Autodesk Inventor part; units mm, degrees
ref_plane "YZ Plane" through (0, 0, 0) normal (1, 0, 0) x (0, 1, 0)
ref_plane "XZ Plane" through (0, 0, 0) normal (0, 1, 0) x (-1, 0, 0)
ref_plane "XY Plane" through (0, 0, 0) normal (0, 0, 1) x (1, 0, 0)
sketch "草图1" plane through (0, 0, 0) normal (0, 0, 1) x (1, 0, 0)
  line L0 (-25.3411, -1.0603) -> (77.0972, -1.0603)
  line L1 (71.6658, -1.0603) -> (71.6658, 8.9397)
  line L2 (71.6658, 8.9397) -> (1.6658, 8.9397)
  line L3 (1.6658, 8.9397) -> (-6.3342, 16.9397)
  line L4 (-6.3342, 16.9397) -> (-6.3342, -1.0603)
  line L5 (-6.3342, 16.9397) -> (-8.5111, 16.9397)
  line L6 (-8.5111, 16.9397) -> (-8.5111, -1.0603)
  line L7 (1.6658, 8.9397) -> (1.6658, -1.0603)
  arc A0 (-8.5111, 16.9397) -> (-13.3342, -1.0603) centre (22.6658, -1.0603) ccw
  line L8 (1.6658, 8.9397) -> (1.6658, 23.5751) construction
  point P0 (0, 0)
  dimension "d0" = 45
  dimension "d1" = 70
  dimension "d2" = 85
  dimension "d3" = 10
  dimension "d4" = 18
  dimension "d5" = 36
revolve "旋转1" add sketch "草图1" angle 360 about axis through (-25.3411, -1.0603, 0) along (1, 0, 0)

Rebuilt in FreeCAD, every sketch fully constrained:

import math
import FreeCAD as App
import Part
import Sketcher
from FreeCAD import Vector
Q = App.Units.Quantity

doc = App.newDocument("Part")
body = doc.addObject("PartDesign::Body", "Body")

# Sketch on XY plane
sketch1 = body.newObject("Sketcher::SketchObject", "Sketch")
sketch1.AttachmentSupport = (doc.getObject("XY_Plane"), [""])
sketch1.MapMode = "FlatFace"
sketch1.addGeometry(Part.ArcOfCircle(Part.Circle(Vector(22.7, -1.1, 0), Vector(0, 0, 1), 36), math.radians(150), math.radians(180)), False)
sketch1.addGeometry(Part.LineSegment(Vector(-13.3, -1.1, 0), Vector(71.7, -1.1, 0)), False)
sketch1.addGeometry(Part.LineSegment(Vector(71.7, -1.1, 0), Vector(71.7, 8.9, 0)), False)
sketch1.addGeometry(Part.LineSegment(Vector(71.7, 8.9, 0), Vector(1.7, 8.9, 0)), False)
sketch1.addGeometry(Part.LineSegment(Vector(1.7, 8.9, 0), Vector(-6.3, 16.9, 0)), False)
sketch1.addGeometry(Part.LineSegment(Vector(-6.3, 16.9, 0), Vector(-8.5, 16.9, 0)), False)
sketch1.addGeometry(Part.LineSegment(Vector(-13.3, -1.1, 0), Vector(71.7, -1.1, 0)), True)  # axis
sketch1.addConstraint(Sketcher.Constraint("Coincident", 0, 2, 1, 1))
sketch1.addConstraint(Sketcher.Constraint("Coincident", 1, 2, 2, 1))
sketch1.addConstraint(Sketcher.Constraint("Coincident", 2, 2, 3, 1))
sketch1.addConstraint(Sketcher.Constraint("Coincident", 3, 2, 4, 1))
sketch1.addConstraint(Sketcher.Constraint("Coincident", 4, 2, 5, 1))
sketch1.addConstraint(Sketcher.Constraint("Coincident", 5, 2, 0, 1))
sketch1.addConstraint(Sketcher.Constraint("Horizontal", 1))
sketch1.addConstraint(Sketcher.Constraint("Vertical", 2))
sketch1.addConstraint(Sketcher.Constraint("Horizontal", 3))
sketch1.addConstraint(Sketcher.Constraint("Horizontal", 5))
sketch1.addConstraint(Sketcher.Constraint("Horizontal", 6))
sketch1.addConstraint(Sketcher.Constraint("Coincident", 6, 1, 0, 2))
sketch1.addConstraint(Sketcher.Constraint("Vertical", 2, 2, 6, 2))
sketch1.addConstraint(Sketcher.Constraint("Radius", 0, Q("36 mm")))
sketch1.addConstraint(Sketcher.Constraint("DistanceX", 1, 1, 1, 2, Q("85 mm")))
sketch1.addConstraint(Sketcher.Constraint("DistanceX", 3, 2, 3, 1, Q("70 mm")))
sketch1.addConstraint(Sketcher.Constraint("DistanceY", 2, 1, 2, 2, Q("10 mm")))
sketch1.addConstraint(Sketcher.Constraint("DistanceY", 0, 3, 2, 2, Q("10 mm")))
sketch1.addConstraint(Sketcher.Constraint("DistanceY", 0, 2, 4, 2, Q("18 mm")))
sketch1.addConstraint(Sketcher.Constraint("Angle", 4, Q("135 deg")))
sketch1.addConstraint(Sketcher.Constraint("DistanceX", 5, 2, -1, 1, Q("8.511 mm")))
sketch1.addConstraint(Sketcher.Constraint("DistanceY", 0, 3, -1, 1, Q("1.0603 mm")))
revolution = body.newObject("PartDesign::Revolution", "Revolution")
revolution.Profile = sketch1
revolution.ReferenceAxis = (sketch1, ["Axis0"])
revolution.Angle = 360

doc.recompute()
